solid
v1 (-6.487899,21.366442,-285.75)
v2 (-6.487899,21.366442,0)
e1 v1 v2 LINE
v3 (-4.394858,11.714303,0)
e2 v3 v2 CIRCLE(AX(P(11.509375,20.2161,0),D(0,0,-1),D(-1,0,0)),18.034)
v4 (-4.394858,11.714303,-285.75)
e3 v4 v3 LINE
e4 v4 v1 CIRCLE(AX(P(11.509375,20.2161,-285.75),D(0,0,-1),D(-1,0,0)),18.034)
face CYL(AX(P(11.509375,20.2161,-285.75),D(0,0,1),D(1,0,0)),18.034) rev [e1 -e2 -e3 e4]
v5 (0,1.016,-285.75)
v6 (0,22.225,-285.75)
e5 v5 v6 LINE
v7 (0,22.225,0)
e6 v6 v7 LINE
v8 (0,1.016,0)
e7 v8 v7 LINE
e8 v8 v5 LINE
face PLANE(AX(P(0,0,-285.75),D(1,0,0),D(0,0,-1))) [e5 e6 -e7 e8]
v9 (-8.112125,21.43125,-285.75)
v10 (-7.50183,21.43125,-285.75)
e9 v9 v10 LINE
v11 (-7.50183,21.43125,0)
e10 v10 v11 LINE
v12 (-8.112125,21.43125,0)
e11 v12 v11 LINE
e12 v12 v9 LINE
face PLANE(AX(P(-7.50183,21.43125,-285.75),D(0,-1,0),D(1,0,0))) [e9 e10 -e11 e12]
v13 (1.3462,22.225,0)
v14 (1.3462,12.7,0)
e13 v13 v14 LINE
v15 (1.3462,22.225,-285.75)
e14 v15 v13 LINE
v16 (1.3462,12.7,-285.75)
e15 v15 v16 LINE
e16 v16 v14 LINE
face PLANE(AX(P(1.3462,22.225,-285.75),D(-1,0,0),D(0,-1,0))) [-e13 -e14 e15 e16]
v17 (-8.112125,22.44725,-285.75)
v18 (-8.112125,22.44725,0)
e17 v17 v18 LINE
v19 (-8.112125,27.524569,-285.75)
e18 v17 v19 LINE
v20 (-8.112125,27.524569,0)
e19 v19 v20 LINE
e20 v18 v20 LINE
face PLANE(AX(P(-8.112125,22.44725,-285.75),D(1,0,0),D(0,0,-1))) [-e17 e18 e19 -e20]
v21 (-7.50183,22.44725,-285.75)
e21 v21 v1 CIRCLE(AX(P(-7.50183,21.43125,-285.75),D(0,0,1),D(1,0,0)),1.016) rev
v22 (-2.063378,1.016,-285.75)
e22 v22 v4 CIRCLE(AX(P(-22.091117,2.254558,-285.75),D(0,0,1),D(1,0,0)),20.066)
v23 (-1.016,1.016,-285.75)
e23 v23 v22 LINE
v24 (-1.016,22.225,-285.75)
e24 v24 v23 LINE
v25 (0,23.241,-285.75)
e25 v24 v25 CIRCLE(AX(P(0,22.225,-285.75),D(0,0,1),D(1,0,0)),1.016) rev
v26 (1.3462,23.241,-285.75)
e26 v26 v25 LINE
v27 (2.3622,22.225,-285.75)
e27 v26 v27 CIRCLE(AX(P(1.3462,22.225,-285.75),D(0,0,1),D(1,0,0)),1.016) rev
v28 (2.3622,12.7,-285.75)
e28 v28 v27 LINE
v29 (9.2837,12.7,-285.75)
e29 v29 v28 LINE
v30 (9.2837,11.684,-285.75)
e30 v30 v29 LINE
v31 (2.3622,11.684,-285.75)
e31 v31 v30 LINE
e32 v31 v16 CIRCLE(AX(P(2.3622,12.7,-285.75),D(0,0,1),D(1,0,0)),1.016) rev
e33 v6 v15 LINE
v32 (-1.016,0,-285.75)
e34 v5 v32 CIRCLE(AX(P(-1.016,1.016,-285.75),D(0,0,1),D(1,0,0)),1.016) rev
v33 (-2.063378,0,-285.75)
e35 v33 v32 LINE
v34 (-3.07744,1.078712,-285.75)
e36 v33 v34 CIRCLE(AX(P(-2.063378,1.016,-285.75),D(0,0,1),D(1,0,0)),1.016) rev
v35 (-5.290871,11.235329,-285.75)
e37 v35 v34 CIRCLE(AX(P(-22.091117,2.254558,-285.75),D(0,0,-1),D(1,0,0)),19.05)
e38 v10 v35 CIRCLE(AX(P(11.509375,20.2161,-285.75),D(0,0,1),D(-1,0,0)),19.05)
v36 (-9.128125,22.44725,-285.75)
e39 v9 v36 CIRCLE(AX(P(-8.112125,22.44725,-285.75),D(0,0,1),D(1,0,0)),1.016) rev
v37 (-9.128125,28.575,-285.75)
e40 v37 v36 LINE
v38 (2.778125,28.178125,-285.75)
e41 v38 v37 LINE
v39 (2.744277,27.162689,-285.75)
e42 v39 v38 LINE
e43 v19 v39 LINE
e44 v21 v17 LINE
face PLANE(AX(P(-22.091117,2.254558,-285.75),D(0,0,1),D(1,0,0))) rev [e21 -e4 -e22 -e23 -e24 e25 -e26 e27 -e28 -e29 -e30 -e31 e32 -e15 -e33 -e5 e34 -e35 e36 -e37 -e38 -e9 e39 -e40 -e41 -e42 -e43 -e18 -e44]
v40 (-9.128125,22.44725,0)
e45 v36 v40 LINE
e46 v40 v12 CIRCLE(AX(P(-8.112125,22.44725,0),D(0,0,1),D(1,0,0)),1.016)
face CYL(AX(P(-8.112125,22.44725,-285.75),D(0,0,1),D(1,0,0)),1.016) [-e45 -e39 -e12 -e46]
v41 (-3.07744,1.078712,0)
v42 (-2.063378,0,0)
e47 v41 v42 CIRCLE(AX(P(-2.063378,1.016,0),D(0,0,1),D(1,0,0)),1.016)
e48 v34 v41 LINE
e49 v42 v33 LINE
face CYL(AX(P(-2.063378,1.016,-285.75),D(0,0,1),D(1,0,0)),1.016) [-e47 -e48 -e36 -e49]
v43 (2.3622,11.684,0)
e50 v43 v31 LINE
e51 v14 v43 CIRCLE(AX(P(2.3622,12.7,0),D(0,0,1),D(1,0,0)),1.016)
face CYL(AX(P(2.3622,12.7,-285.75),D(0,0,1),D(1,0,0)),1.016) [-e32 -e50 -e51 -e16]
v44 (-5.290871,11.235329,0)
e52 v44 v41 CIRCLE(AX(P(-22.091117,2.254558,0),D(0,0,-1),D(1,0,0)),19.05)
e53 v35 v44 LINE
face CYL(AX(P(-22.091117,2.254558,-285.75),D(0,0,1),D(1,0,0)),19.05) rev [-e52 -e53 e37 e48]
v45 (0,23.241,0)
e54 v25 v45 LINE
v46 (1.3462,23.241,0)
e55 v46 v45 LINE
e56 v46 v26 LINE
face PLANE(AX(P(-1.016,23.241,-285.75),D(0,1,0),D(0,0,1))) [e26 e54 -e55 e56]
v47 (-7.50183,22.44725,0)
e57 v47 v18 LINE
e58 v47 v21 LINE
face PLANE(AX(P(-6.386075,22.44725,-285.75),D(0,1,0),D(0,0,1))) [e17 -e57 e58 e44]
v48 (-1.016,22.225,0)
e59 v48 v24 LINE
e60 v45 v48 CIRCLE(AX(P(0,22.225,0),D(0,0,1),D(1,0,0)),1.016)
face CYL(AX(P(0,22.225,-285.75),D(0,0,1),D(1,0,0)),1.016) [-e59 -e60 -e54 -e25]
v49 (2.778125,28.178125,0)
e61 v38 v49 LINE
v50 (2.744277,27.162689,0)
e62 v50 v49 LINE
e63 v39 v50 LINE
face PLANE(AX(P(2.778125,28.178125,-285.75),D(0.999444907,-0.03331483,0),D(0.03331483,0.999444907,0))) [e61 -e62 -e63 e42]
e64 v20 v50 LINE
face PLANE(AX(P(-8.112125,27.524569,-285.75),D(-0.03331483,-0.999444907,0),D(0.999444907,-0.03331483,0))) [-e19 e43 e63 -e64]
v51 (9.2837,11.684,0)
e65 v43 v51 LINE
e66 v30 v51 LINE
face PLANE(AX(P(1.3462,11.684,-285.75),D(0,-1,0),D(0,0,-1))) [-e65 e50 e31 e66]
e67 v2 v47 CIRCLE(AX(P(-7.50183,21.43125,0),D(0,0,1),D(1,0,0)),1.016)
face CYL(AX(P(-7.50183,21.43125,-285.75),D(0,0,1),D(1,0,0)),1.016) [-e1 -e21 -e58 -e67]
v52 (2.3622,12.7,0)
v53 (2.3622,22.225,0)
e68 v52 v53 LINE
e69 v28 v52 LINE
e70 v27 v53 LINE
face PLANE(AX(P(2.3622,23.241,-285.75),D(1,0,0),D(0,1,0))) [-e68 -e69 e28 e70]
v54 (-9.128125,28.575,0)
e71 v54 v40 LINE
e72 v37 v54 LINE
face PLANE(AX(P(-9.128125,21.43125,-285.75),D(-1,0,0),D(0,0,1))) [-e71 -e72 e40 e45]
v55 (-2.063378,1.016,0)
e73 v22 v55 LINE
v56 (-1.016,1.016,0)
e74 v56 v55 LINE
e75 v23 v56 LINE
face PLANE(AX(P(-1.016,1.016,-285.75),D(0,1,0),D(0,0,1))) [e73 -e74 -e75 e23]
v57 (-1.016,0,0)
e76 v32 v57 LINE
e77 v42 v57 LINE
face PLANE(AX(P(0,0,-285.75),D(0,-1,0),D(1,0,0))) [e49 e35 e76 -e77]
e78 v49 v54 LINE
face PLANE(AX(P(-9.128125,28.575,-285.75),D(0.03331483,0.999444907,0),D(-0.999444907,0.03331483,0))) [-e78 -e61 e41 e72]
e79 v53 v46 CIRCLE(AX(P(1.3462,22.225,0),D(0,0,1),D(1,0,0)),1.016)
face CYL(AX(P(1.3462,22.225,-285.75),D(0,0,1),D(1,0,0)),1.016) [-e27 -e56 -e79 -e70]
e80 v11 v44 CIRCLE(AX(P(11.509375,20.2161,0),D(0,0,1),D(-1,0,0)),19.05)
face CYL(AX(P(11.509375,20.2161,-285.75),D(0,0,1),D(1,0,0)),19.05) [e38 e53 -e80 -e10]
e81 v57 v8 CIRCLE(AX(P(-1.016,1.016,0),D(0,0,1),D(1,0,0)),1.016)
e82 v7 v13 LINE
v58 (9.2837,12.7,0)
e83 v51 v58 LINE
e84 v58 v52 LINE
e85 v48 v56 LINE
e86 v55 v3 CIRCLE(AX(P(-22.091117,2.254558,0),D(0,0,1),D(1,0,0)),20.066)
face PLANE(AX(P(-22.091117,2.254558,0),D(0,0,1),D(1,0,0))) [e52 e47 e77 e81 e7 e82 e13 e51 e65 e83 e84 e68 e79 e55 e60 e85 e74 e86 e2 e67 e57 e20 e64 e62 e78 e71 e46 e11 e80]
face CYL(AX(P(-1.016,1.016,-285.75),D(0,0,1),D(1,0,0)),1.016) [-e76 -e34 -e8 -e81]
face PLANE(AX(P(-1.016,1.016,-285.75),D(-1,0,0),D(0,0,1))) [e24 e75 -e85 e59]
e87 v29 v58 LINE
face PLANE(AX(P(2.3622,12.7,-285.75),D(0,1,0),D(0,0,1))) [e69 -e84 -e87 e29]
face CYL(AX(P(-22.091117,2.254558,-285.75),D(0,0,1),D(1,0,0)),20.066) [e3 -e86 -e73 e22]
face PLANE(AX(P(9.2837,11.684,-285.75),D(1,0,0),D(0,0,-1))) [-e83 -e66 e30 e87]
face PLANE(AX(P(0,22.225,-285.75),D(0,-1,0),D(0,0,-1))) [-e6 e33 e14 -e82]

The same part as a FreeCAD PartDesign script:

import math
import FreeCAD as App
import Part
import Sketcher
from FreeCAD import Vector
Q = App.Units.Quantity


def edges_at(feature, points):
    """Names of the edges that pass closest to the given points."""
    edges = feature.Shape.Edges
    near = lambda p: min(range(len(edges)), key=lambda i: edges[i].distToShape(Part.Vertex(*p))[0])
    return sorted({f"Edge{near(p) + 1}" for p in points})

doc = App.newDocument("Part")
body = doc.addObject("PartDesign::Body", "Body")

# Sketch on XY plane
sketch1 = doc.addObject("Sketcher::SketchObject", "Sketch")
body.addObject(sketch1)
sketch1.AttachmentSupport = (doc.XY_Plane, [""])
sketch1.MapMode = "FlatFace"
sketch1.addGeometry(Part.LineSegment(Vector(0, 0, 0), Vector(0, 22.2, 0)), False)
sketch1.addGeometry(Part.LineSegment(Vector(0, 22.2, 0), Vector(1.3, 22.2, 0)), False)
sketch1.addGeometry(Part.LineSegment(Vector(1.3, 22.2, 0), Vector(1.3, 11.7, 0)), False)
sketch1.addGeometry(Part.LineSegment(Vector(1.3, 11.7, 0), Vector(9.3, 11.7, 0)), False)
sketch1.addGeometry(Part.LineSegment(Vector(9.3, 11.7, 0), Vector(9.3, 12.7, 0)), False)
sketch1.addGeometry(Part.LineSegment(Vector(9.3, 12.7, 0), Vector(2.4, 12.7, 0)), False)
sketch1.addGeometry(Part.LineSegment(Vector(2.4, 12.7, 0), Vector(2.4, 23.2, 0)), False)
sketch1.addGeometry(Part.LineSegment(Vector(2.4, 23.2, 0), Vector(-1, 23.2, 0)), False)
sketch1.addGeometry(Part.LineSegment(Vector(-1, 23.2, 0), Vector(-1, 1, 0)), False)
sketch1.addGeometry(Part.LineSegment(Vector(-1, 1, 0), Vector(-2.1, 1, 0)), False)
sketch1.addGeometry(Part.ArcOfCircle(Part.Circle(Vector(-22.1, 2.3, 0), Vector(0, 0, 1), 20.1), math.radians(-4), math.radians(28)), False)
sketch1.addGeometry(Part.ArcOfCircle(Part.Circle(Vector(11.5, 20.2, 0), Vector(0, 0, 1), 18), math.radians(173), math.radians(208)), False)
sketch1.addGeometry(Part.LineSegment(Vector(-6.4, 22.4, 0), Vector(-8.1, 22.4, 0)), False)
sketch1.addGeometry(Part.LineSegment(Vector(-8.1, 22.4, 0), Vector(-8.1, 27.5, 0)), False)
sketch1.addGeometry(Part.LineSegment(Vector(-8.1, 27.5, 0), Vector(2.7, 27.2, 0)), False)
sketch1.addGeometry(Part.LineSegment(Vector(2.7, 27.2, 0), Vector(2.8, 28.2, 0)), False)
sketch1.addGeometry(Part.LineSegment(Vector(2.8, 28.2, 0), Vector(-9.1, 28.6, 0)), False)
sketch1.addGeometry(Part.LineSegment(Vector(-9.1, 28.6, 0), Vector(-9.1, 21.4, 0)), False)
sketch1.addGeometry(Part.LineSegment(Vector(-9.1, 21.4, 0), Vector(-7.5, 21.4, 0)), False)
sketch1.addGeometry(Part.ArcOfCircle(Part.Circle(Vector(11.5, 20.2, 0), Vector(0, 0, 1), 19.1), math.radians(176), math.radians(208)), False)
sketch1.addGeometry(Part.ArcOfCircle(Part.Circle(Vector(-22.1, 2.3, 0), Vector(0, 0, 1), 19), math.radians(-7), math.radians(28)), False)
sketch1.addGeometry(Part.LineSegment(Vector(-3.2, 0, 0), Vector(0, 0, 0)), False)
sketch1.addConstraint(Sketcher.Constraint("Coincident", 0, 2, 1, 1))
sketch1.addConstraint(Sketcher.Constraint("Coincident", 1, 2, 2, 1))
sketch1.addConstraint(Sketcher.Constraint("Coincident", 2, 2, 3, 1))
sketch1.addConstraint(Sketcher.Constraint("Coincident", 3, 2, 4, 1))
sketch1.addConstraint(Sketcher.Constraint("Coincident", 4, 2, 5, 1))
sketch1.addConstraint(Sketcher.Constraint("Coincident", 5, 2, 6, 1))
sketch1.addConstraint(Sketcher.Constraint("Coincident", 6, 2, 7, 1))
sketch1.addConstraint(Sketcher.Constraint("Coincident", 7, 2, 8, 1))
sketch1.addConstraint(Sketcher.Constraint("Coincident", 8, 2, 9, 1))
sketch1.addConstraint(Sketcher.Constraint("Coincident", 9, 2, 10, 1))
sketch1.addConstraint(Sketcher.Constraint("Tangent", 10, 2, 11, 2))
sketch1.addConstraint(Sketcher.Constraint("Coincident", 11, 1, 12, 1))
sketch1.addConstraint(Sketcher.Constraint("Coincident", 12, 2, 13, 1))
sketch1.addConstraint(Sketcher.Constraint("Coincident", 13, 2, 14, 1))
sketch1.addConstraint(Sketcher.Constraint("Coincident", 14, 2, 15, 1))
sketch1.addConstraint(Sketcher.Constraint("Coincident", 15, 2, 16, 1))
sketch1.addConstraint(Sketcher.Constraint("Coincident", 16, 2, 17, 1))
sketch1.addConstraint(Sketcher.Constraint("Coincident", 17, 2, 18, 1))
sketch1.addConstraint(Sketcher.Constraint("Coincident", 18, 2, 19, 1))
sketch1.addConstraint(Sketcher.Constraint("Tangent", 19, 2, 20, 2))
sketch1.addConstraint(Sketcher.Constraint("Coincident", 20, 1, 21, 1))
sketch1.addConstraint(Sketcher.Constraint("Coincident", 21, 2, 0, 1))
sketch1.addConstraint(Sketcher.Constraint("Vertical", 0))
sketch1.addConstraint(Sketcher.Constraint("Horizontal", 1))
sketch1.addConstraint(Sketcher.Constraint("Vertical", 2))
sketch1.addConstraint(Sketcher.Constraint("Horizontal", 3))
sketch1.addConstraint(Sketcher.Constraint("Vertical", 4))
sketch1.addConstraint(Sketcher.Constraint("Horizontal", 5))
sketch1.addConstraint(Sketcher.Constraint("Vertical", 6))
sketch1.addConstraint(Sketcher.Constraint("Horizontal", 7))
sketch1.addConstraint(Sketcher.Constraint("Vertical", 8))
sketch1.addConstraint(Sketcher.Constraint("Horizontal", 9))
sketch1.addConstraint(Sketcher.Constraint("Horizontal", 12))
sketch1.addConstraint(Sketcher.Constraint("Vertical", 13))
sketch1.addConstraint(Sketcher.Constraint("Vertical", 17))
sketch1.addConstraint(Sketcher.Constraint("Horizontal", 18))
sketch1.addConstraint(Sketcher.Constraint("Horizontal", 21))
sketch1.addConstraint(Sketcher.Constraint("Coincident", 21, 2, -1, 1))
sketch1.addConstraint(Sketcher.Constraint("Coincident", 19, 3, 11, 3))
sketch1.addConstraint(Sketcher.Constraint("Coincident", 20, 3, 10, 3))
sketch1.addConstraint(Sketcher.Constraint("Equal", 19, 20))
sketch1.addConstraint(Sketcher.Constraint("Perpendicular", 14, 15))
sketch1.addConstraint(Sketcher.Constraint("Perpendicular", 15, 16))
sketch1.addConstraint(Sketcher.Constraint("Equal", 2, 6))
sketch1.addConstraint(Sketcher.Constraint("Equal", 0, 8))
sketch1.addConstraint(Sketcher.Constraint("Radius", 10, Q("0.79 in")))
sketch1.addConstraint(Sketcher.Constraint("Radius", 11, Q("0.71 in")))
sketch1.addConstraint(Sketcher.Constraint("DistanceY", 4, 1, 4, 2, Q("0.04 in")))
sketch1.addConstraint(Sketcher.Constraint("DistanceY", -1, 1, 4, 2, Q("0.5 in")))
sketch1.addConstraint(Sketcher.Constraint("Distance", 15, Q("0.04 in")))
sketch1.addConstraint(Sketcher.Constraint("DistanceX", 1, 1, 1, 2, Q("0.053 in")))
sketch1.addConstraint(Sketcher.Constraint("DistanceX", 3, 1, 3, 2, Q("0.3125 in")))
sketch1.addConstraint(Sketcher.Constraint("DistanceX", 7, 2, 7, 1, Q("0.133 in")))
sketch1.addConstraint(Sketcher.Constraint("DistanceX", 21, 1, 21, 2, Q("0.125 in")))
sketch1.addConstraint(Sketcher.Constraint("DistanceY", 0, 1, 0, 2, Q("0.875 in")))
sketch1.addConstraint(Sketcher.Constraint("DistanceY", 17, 2, 17, 1, Q("0.28125 in")))
sketch1.addConstraint(Sketcher.Constraint("DistanceX", 7, 2, -1, 1, Q("0.04 in")))
sketch1.addConstraint(Sketcher.Constraint("DistanceX", 16, 2, 13, 2, Q("0.04 in")))
sketch1.addConstraint(Sketcher.Constraint("DistanceY", 7, 2, 16, 2, Q("0.21 in")))
sketch1.addConstraint(Sketcher.Constraint("DistanceY", 17, 2, 12, 2, Q("0.04 in")))
sketch1.addConstraint(Sketcher.Constraint("DistanceX", -1, 1, 11, 3, Q("0.453125 in")))
sketch1.addConstraint(Sketcher.Constraint("DistanceX", -1, 1, 15, 2, Q("0.109375 in")))
sketch1.addConstraint(Sketcher.Constraint("DistanceY", -1, 1, 15, 2, Q("1.109375 in")))
sketch1.addConstraint(Sketcher.Constraint("DistanceX", 16, 2, -1, 1, Q("0.359375 in")))
sketch1.addConstraint(Sketcher.Constraint("DistanceX", 12, 2, 12, 1, 1.72605))
pad1 = doc.addObject("PartDesign::Pad", "Pad")
body.addObject(pad1)
pad1.Profile = sketch1
pad1.Length = Q("11.25 in")
pad1.Reversed = True
doc.recompute()

fillet = doc.addObject("PartDesign::Fillet", "Fillet")
body.addObject(fillet)
fillet.Base = (pad1, edges_at(pad1, [
    (-3.175, 0, -142.875),
    (-9.128, 21.431, -142.875),
    (-6.386, 22.447, -142.875),
    (-1.016, 23.241, -142.875),
    (2.362, 23.241, -142.875),
    (1.346, 11.684, -142.875),
    (0, 0, -142.875),
]))
fillet.Radius = Q("0.04 in")

doc.recompute()
